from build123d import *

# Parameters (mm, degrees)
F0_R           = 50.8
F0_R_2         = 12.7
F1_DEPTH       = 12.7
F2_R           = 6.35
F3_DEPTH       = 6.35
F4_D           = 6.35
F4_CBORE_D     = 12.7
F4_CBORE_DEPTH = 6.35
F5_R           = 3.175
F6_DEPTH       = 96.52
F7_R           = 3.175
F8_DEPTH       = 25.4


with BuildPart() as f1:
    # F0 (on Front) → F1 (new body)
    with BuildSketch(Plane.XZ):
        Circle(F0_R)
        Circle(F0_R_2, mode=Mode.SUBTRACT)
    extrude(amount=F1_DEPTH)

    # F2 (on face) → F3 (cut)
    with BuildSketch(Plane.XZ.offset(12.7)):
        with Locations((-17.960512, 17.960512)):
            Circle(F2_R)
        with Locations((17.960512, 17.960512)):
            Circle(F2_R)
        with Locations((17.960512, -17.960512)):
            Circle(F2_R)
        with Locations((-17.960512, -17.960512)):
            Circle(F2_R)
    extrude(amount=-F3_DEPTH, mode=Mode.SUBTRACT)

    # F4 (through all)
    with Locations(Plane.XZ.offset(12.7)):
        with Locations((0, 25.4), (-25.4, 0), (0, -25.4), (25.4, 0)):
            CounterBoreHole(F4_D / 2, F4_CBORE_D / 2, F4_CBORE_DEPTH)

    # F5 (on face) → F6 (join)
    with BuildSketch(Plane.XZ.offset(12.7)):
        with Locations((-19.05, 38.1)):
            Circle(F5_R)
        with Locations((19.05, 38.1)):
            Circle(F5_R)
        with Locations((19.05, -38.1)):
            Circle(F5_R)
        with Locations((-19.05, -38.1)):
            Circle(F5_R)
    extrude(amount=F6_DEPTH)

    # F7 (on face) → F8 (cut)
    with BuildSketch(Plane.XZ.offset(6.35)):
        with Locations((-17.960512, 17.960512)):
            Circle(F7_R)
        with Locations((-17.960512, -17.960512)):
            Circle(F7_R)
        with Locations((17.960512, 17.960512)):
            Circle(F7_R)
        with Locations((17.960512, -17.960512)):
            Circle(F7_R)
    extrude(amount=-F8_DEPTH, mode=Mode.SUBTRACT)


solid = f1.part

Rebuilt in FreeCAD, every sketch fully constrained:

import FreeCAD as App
import Part
import Sketcher

V = App.Vector
Q = App.Units.Quantity

doc = App.newDocument("Part")
params = doc.addObject("Spreadsheet::Sheet", "Params")
for row, (alias, value) in enumerate([
    ("sketch1_diameter", "4 in"),
    ("sketch1_diameter2", "1 in"),
    ("pad1_length", "0.5 in"),
    ("sketch2_diameter", "0.5 in"),
    ("pocket1_length", "0.25 in"),
    ("sketch3_diameter", "0.25 in"),
    ("hole_diameter", "0.25 in"),
    ("hole_cbore_diameter", "0.5 in"),
    ("hole_cbore_depth", "0.25 in"),
    ("sketch4_diameter", "0.25 in"),
    ("pad2_length", "3.8 in"),
    ("sketch5_diameter", "0.25 in"),
    ("pocket2_length", "1 in"),
], start=1):
    params.set(f"A{row}", alias)
    params.set(f"B{row}", "=" + value)
    params.setAlias(f"B{row}", alias)

body = doc.addObject("PartDesign::Body", "Body")

sketch1 = doc.addObject("Sketcher::SketchObject", "Sketch")
body.addObject(sketch1)
sketch1.AttachmentSupport = (doc.XZ_Plane, [""])
sketch1.MapMode = "FlatFace"
sketch1.addGeometry([
    Part.Circle(V(0, 0, 0), V(0, 0, 1), 51),
    Part.Circle(V(0, 0, 0), V(0, 0, 1), 13),
], False)
sketch1.addConstraint([
    Sketcher.Constraint("Coincident", 0, 3, -1, 1),
    Sketcher.Constraint("Coincident", 1, 3, -1, 1),
    Sketcher.Constraint("Diameter", 0, Q("4 in")),
    Sketcher.Constraint("Diameter", 1, Q("1 in")),
])
sketch1.setExpression("Constraints[2]", "Params.sketch1_diameter")
sketch1.setExpression("Constraints[3]", "Params.sketch1_diameter2")
pad1 = doc.addObject("PartDesign::Pad", "Pad")
body.addObject(pad1)
pad1.Profile = sketch1
pad1.setExpression("Length", "Params.pad1_length")

sketch2 = doc.addObject("Sketcher::SketchObject", "Sketch001")
body.addObject(sketch2)
sketch2.AttachmentSupport = (doc.XZ_Plane, [""])
sketch2.MapMode = "FlatFace"
sketch2.AttachmentOffset = App.Placement(V(0, 0, 0.5 * 25.4), App.Rotation())
sketch2.addGeometry([
    Part.Circle(V(-18, 18, 0), V(0, 0, 1), 6),
    Part.Circle(V(18, 18, 0), V(0, 0, 1), 6),
    Part.Circle(V(18, -18, 0), V(0, 0, 1), 6),
    Part.Circle(V(-18, -18, 0), V(0, 0, 1), 6),
], False)
sketch2.addConstraint([
    Sketcher.Constraint("Equal", 0, 1),
    Sketcher.Constraint("Equal", 1, 2),
    Sketcher.Constraint("Equal", 2, 3),
    Sketcher.Constraint("Symmetric", 0, 3, 2, 3, -1, 1),
    Sketcher.Constraint("Symmetric", 1, 3, 3, 3, -1, 1),
    Sketcher.Constraint("Symmetric", 0, 3, 1, 3, -2),
    Sketcher.Constraint("Diameter", 0, Q("0.5 in")),
    Sketcher.Constraint("DistanceX", 0, 3, -1, 1, Q("17.960512 mm")),
    Sketcher.Constraint("DistanceY", -1, 1, 0, 3, Q("17.960512 mm")),
])
sketch2.setExpression("Constraints[6]", "Params.sketch2_diameter")
pocket1 = doc.addObject("PartDesign::Pocket", "Pocket")
body.addObject(pocket1)
pocket1.Profile = sketch2
pocket1.setExpression("Length", "Params.pocket1_length")

sketch3 = doc.addObject("Sketcher::SketchObject", "Sketch002")
body.addObject(sketch3)
sketch3.AttachmentSupport = (doc.XZ_Plane, [""])
sketch3.MapMode = "FlatFace"
sketch3.AttachmentOffset = App.Placement(V(0, 0, 0.5 * 25.4), App.Rotation())
sketch3.addGeometry([
    Part.Circle(V(0, 25.4, 0), V(0, 0, 1), 3.2),
    Part.Circle(V(-25.4, 0, 0), V(0, 0, 1), 3.2),
    Part.Circle(V(0, -25.4, 0), V(0, 0, 1), 3.2),
    Part.Circle(V(25.4, 0, 0), V(0, 0, 1), 3.2),
], False)
sketch3.addConstraint([
    Sketcher.Constraint("Equal", 0, 1),
    Sketcher.Constraint("Equal", 1, 2),
    Sketcher.Constraint("Equal", 2, 3),
    Sketcher.Constraint("Symmetric", 0, 3, 2, 3, -1, 1),
    Sketcher.Constraint("Symmetric", 1, 3, 3, 3, -1, 1),
    Sketcher.Constraint("PointOnObject", 0, 3, -2),
    Sketcher.Constraint("PointOnObject", 1, 3, -1),
    Sketcher.Constraint("Diameter", 0, Q("0.25 in")),
    Sketcher.Constraint("DistanceY", -1, 1, 0, 3, Q("1 in")),
    Sketcher.Constraint("DistanceX", 1, 3, -1, 1, Q("1 in")),
])
sketch3.setExpression("Constraints[7]", "Params.sketch3_diameter")
doc.recompute()
hole = doc.addObject("PartDesign::Hole", "Hole")
body.addObject(hole)
hole.Profile = sketch3
hole.ThreadType = "None"
hole.setExpression("Diameter", "Params.hole_diameter")
hole.DepthType = "ThroughAll"
hole.HoleCutType = "Counterbore"
hole.setExpression("HoleCutDiameter", "Params.hole_cbore_diameter")
hole.setExpression("HoleCutDepth", "Params.hole_cbore_depth")

sketch4 = doc.addObject("Sketcher::SketchObject", "Sketch003")
body.addObject(sketch4)
sketch4.AttachmentSupport = (doc.XZ_Plane, [""])
sketch4.MapMode = "FlatFace"
sketch4.AttachmentOffset = App.Placement(V(0, 0, 0.5 * 25.4), App.Rotation())
sketch4.addGeometry([
    Part.Circle(V(-19.1, 38.1, 0), V(0, 0, 1), 3.2),
    Part.Circle(V(19.1, 38.1, 0), V(0, 0, 1), 3.2),
    Part.Circle(V(19.1, -38.1, 0), V(0, 0, 1), 3.2),
    Part.Circle(V(-19.1, -38.1, 0), V(0, 0, 1), 3.2),
], False)
sketch4.addConstraint([
    Sketcher.Constraint("Equal", 0, 1),
    Sketcher.Constraint("Equal", 1, 2),
    Sketcher.Constraint("Equal", 2, 3),
    Sketcher.Constraint("Symmetric", 0, 3, 2, 3, -1, 1),
    Sketcher.Constraint("Symmetric", 1, 3, 3, 3, -1, 1),
    Sketcher.Constraint("Symmetric", 0, 3, 1, 3, -2),
    Sketcher.Constraint("Diameter", 0, Q("0.25 in")),
    Sketcher.Constraint("DistanceY", 2, 3, 1, 3, Q("3 in")),
    Sketcher.Constraint("DistanceX", 0, 3, 1, 3, Q("1.5 in")),
])
sketch4.setExpression("Constraints[6]", "Params.sketch4_diameter")
pad2 = doc.addObject("PartDesign::Pad", "Pad001")
body.addObject(pad2)
pad2.Profile = sketch4
pad2.setExpression("Length", "Params.pad2_length")

sketch5 = doc.addObject("Sketcher::SketchObject", "Sketch004")
body.addObject(sketch5)
sketch5.AttachmentSupport = (doc.XZ_Plane, [""])
sketch5.MapMode = "FlatFace"
sketch5.AttachmentOffset = App.Placement(V(0, 0, 0.25 * 25.4), App.Rotation())
sketch5.addGeometry([
    Part.Circle(V(-18, 18, 0), V(0, 0, 1), 3.2),
    Part.Circle(V(-18, -18, 0), V(0, 0, 1), 3.2),
    Part.Circle(V(18, 18, 0), V(0, 0, 1), 3.2),
    Part.Circle(V(18, -18, 0), V(0, 0, 1), 3.2),
], False)
sketch5.addConstraint([
    Sketcher.Constraint("Equal", 0, 1),
    Sketcher.Constraint("Equal", 1, 2),
    Sketcher.Constraint("Equal", 2, 3),
    Sketcher.Constraint("Symmetric", 1, 3, 2, 3, -1, 1),
    Sketcher.Constraint("Symmetric", 0, 3, 3, 3, -1, 1),
    Sketcher.Constraint("Symmetric", 0, 3, 2, 3, -2),
    Sketcher.Constraint("Diameter", 0, Q("0.25 in")),
    Sketcher.Constraint("DistanceX", 0, 3, -1, 1, Q("17.960512 mm")),
    Sketcher.Constraint("DistanceY", -1, 1, 0, 3, Q("17.960512 mm")),
])
sketch5.setExpression("Constraints[6]", "Params.sketch5_diameter")
pocket2 = doc.addObject("PartDesign::Pocket", "Pocket001")
body.addObject(pocket2)
pocket2.Profile = sketch5
pocket2.setExpression("Length", "Params.pocket2_length")

doc.recompute()
